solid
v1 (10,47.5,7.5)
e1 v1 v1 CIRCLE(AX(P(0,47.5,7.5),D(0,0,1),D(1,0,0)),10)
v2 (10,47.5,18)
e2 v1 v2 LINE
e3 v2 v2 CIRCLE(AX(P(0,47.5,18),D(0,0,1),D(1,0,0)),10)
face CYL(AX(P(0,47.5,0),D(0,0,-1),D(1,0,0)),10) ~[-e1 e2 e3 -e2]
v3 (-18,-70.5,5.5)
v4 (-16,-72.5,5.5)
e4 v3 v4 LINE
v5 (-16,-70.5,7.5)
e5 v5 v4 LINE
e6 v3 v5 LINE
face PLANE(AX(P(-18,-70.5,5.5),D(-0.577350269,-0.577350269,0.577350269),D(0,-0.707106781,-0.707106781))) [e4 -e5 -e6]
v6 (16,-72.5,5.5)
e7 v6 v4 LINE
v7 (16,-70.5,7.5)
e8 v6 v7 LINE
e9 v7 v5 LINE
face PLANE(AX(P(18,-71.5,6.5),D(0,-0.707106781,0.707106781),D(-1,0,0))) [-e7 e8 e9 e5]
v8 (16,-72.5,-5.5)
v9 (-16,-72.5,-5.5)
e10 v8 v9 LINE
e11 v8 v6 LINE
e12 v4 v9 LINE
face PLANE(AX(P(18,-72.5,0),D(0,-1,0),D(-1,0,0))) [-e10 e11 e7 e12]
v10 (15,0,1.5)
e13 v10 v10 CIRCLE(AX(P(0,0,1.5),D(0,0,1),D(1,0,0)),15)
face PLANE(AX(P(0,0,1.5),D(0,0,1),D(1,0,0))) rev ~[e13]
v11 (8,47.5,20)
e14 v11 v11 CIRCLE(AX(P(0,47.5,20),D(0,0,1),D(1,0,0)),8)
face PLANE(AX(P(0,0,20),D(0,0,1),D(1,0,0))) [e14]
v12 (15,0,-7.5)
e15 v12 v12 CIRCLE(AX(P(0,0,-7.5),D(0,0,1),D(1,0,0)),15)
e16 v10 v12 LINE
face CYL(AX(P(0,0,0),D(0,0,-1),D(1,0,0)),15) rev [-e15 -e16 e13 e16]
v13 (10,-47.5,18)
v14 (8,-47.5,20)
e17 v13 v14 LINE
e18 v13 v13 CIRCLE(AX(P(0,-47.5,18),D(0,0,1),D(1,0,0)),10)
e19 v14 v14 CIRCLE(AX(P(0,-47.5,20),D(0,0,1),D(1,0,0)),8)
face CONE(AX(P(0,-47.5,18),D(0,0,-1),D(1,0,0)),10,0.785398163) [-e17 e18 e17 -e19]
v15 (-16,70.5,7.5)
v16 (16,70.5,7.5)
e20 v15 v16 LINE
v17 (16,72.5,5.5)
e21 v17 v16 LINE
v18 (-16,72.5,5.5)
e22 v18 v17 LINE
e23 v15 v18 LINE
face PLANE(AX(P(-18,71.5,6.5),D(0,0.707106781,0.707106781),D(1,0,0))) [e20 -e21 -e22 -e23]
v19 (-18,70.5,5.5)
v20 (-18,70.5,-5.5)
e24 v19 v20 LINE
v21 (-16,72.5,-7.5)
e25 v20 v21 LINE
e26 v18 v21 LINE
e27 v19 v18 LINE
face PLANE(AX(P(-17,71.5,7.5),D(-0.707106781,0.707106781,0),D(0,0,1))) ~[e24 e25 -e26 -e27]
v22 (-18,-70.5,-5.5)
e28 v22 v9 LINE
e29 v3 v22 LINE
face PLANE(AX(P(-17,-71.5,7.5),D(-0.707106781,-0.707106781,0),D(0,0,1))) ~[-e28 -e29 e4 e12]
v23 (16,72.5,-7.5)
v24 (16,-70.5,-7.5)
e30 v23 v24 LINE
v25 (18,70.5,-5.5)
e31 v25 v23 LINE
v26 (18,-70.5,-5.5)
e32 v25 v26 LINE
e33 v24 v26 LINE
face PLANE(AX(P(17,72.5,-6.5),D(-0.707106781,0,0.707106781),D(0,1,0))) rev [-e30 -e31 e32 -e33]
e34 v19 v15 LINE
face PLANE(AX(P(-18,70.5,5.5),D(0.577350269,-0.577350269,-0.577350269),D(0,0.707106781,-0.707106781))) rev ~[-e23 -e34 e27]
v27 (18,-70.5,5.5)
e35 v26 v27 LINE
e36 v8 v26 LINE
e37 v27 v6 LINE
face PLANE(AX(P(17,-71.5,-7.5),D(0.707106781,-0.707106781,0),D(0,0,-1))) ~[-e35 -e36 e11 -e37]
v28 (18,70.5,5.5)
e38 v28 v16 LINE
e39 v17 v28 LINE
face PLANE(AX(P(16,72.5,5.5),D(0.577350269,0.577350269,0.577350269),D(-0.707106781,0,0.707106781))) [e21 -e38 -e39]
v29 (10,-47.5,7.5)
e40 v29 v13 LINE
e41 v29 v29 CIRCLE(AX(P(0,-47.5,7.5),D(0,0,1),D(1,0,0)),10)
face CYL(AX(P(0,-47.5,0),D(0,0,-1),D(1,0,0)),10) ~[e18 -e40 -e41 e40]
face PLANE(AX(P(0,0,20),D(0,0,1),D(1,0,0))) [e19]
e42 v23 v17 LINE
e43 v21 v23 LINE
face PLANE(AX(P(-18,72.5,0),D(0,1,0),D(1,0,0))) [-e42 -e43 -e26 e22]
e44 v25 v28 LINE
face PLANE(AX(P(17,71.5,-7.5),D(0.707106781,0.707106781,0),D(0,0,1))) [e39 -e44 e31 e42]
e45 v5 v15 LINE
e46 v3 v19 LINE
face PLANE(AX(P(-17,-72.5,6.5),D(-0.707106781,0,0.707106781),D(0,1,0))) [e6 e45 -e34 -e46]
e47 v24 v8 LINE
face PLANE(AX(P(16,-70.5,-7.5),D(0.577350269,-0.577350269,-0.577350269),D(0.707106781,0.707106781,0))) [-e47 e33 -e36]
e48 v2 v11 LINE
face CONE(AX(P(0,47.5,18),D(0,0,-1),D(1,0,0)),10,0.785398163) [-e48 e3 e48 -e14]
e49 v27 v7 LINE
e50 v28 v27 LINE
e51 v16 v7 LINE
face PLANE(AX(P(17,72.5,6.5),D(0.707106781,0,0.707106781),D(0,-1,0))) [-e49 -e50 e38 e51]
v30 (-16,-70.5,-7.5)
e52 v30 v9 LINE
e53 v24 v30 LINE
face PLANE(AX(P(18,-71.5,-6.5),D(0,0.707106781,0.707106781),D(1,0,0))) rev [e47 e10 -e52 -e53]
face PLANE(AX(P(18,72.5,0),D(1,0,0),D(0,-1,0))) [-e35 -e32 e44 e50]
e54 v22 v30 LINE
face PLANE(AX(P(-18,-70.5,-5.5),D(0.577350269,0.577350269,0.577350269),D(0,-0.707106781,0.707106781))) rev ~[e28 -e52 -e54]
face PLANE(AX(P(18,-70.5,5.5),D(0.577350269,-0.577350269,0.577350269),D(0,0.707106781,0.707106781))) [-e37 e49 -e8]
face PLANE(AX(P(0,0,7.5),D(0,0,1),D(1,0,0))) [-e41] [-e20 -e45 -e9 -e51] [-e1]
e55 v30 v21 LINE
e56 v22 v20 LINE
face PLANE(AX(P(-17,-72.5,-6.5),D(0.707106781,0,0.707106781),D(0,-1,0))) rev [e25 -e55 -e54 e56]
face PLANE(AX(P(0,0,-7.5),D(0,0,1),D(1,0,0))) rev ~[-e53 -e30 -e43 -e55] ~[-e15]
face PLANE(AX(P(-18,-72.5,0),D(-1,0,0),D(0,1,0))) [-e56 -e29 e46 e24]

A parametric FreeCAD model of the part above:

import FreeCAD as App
import Part
import Sketcher

V = App.Vector


def edges_at(feature, points):
    """Names of the edges that pass closest to the given points."""
    edges = feature.Shape.Edges
    near = lambda p: min(range(len(edges)), key=lambda i: edges[i].distToShape(Part.Vertex(*p))[0])
    return sorted({f"Edge{near(p) + 1}" for p in points})

doc = App.newDocument("Part")
body = doc.addObject("PartDesign::Body", "Body")

# Sketch on XY plane
sketch1 = body.newObject("Sketcher::SketchObject", "Sketch")
sketch1.AttachmentSupport = (doc.getObject("XY_Plane"), [""])
sketch1.MapMode = "FlatFace"
sketch1.addGeometry(Part.LineSegment(V(-18, -72.5, 0), V(18, -72.5, 0)), False)
sketch1.addGeometry(Part.LineSegment(V(18, -72.5, 0), V(18, 72.5, 0)), False)
sketch1.addGeometry(Part.LineSegment(V(18, 72.5, 0), V(-18, 72.5, 0)), False)
sketch1.addGeometry(Part.LineSegment(V(-18, 72.5, 0), V(-18, -72.5, 0)), False)
sketch1.addGeometry(Part.Circle(V(0, -47.5, 0), V(0, 0, 1), 10), False)
sketch1.addGeometry(Part.Circle(V(0, 0, 0), V(0, 0, 1), 15), False)
sketch1.addGeometry(Part.Circle(V(0, 47.5, 0), V(0, 0, 1), 10), False)
sketch1.addConstraint(Sketcher.Constraint("Coincident", 0, 2, 1, 1))
sketch1.addConstraint(Sketcher.Constraint("Coincident", 1, 2, 2, 1))
sketch1.addConstraint(Sketcher.Constraint("Coincident", 2, 2, 3, 1))
sketch1.addConstraint(Sketcher.Constraint("Coincident", 3, 2, 0, 1))
sketch1.addConstraint(Sketcher.Constraint("Horizontal", 0))
sketch1.addConstraint(Sketcher.Constraint("Vertical", 1))
sketch1.addConstraint(Sketcher.Constraint("Horizontal", 2))
sketch1.addConstraint(Sketcher.Constraint("Vertical", 3))
sketch1.addConstraint(Sketcher.Constraint("Coincident", 5, 3, -1, 1))
sketch1.addConstraint(Sketcher.Constraint("Equal", 4, 6))
sketch1.addConstraint(Sketcher.Constraint("Symmetric", 4, 3, 6, 3, -1, 1))
sketch1.addConstraint(Sketcher.Constraint("Symmetric", 0, 2, 2, 2, -1, 1))
sketch1.addConstraint(Sketcher.Constraint("PointOnObject", 4, 3, -2))
sketch1.addConstraint(Sketcher.Constraint("Diameter", 4, 20.0))
sketch1.addConstraint(Sketcher.Constraint("Diameter", 5, 30.0))
sketch1.addConstraint(Sketcher.Constraint("DistanceX", 0, 1, 0, 2, 36.0))
sketch1.addConstraint(Sketcher.Constraint("DistanceY", 1, 1, 1, 2, 145.0))
sketch1.addConstraint(Sketcher.Constraint("DistanceY", 0, 2, 4, 3, 25.0))
pad1 = body.newObject("PartDesign::Pad", "Pad")
pad1.Profile = sketch1
pad1.Length = 15
pad1.Midplane = True

# Sketch on XY plane
sketch2 = body.newObject("Sketcher::SketchObject", "Sketch001")
sketch2.AttachmentSupport = (doc.getObject("XY_Plane"), [""])
sketch2.MapMode = "FlatFace"
sketch2.addGeometry(Part.Circle(V(0, 47.5, 0), V(0, 0, 1), 10), False)
sketch2.addGeometry(Part.Circle(V(0, -47.5, 0), V(0, 0, 1), 10), False)
sketch2.addConstraint(Sketcher.Constraint("Equal", 0, 1))
sketch2.addConstraint(Sketcher.Constraint("Symmetric", 0, 3, 1, 3, -1, 1))
sketch2.addConstraint(Sketcher.Constraint("PointOnObject", 0, 3, -2))
sketch2.addConstraint(Sketcher.Constraint("Diameter", 0, 20.0))
sketch2.addConstraint(Sketcher.Constraint("DistanceY", 1, 3, 0, 3, 95.0))
pad2 = body.newObject("PartDesign::Pad", "Pad001")
pad2.Profile = sketch2
pad2.Length = 7.5
pad2.Reversed = True

# Sketch on XY plane
sketch3 = body.newObject("Sketcher::SketchObject", "Sketch002")
sketch3.AttachmentSupport = (doc.getObject("XY_Plane"), [""])
sketch3.MapMode = "FlatFace"
sketch3.addGeometry(Part.Circle(V(0, 47.5, 0), V(0, 0, 1), 10), False)
sketch3.addGeometry(Part.Circle(V(0, -47.5, 0), V(0, 0, 1), 10), False)
sketch3.addConstraint(Sketcher.Constraint("Equal", 0, 1))
sketch3.addConstraint(Sketcher.Constraint("Symmetric", 0, 3, 1, 3, -1, 1))
sketch3.addConstraint(Sketcher.Constraint("PointOnObject", 0, 3, -2))
sketch3.addConstraint(Sketcher.Constraint("Diameter", 0, 20.0))
sketch3.addConstraint(Sketcher.Constraint("DistanceY", 1, 3, 0, 3, 95.0))
pad3 = body.newObject("PartDesign::Pad", "Pad002")
pad3.Profile = sketch3
pad3.Length = 20

# Sketch on XY plane
sketch4 = body.newObject("Sketcher::SketchObject", "Sketch003")
sketch4.AttachmentSupport = (doc.getObject("XY_Plane"), [""])
sketch4.MapMode = "FlatFace"
sketch4.AttachmentOffset = App.Placement(V(0, 0, 7.5), App.Rotation())
sketch4.addGeometry(Part.Circle(V(0, 0, 0), V(0, 0, 1), 15), False)
sketch4.addConstraint(Sketcher.Constraint("Coincident", 0, 3, -1, 1))
sketch4.addConstraint(Sketcher.Constraint("Diameter", 0, 30.0))
pad4 = body.newObject("PartDesign::Pad", "Pad003")
pad4.Profile = sketch4
pad4.Length = 6
pad4.Reversed = True
doc.recompute()

chamfer = body.newObject("PartDesign::Chamfer", "Chamfer")
chamfer.Base = (pad4, edges_at(pad4, [
    (0, -72.5, 7.5),
    (18, -72.5, 0),
    (0, -72.5, -7.5),
    (18, 0, -7.5),
    (18, 0, 7.5),
    (18, 72.5, 0),
    (0, 72.5, 7.5),
    (-18, 0, 7.5),
    (-10, 47.5, 20),
    (-10, -47.5, 20),
    (-18, 0, -7.5),
    (-18, -72.5, 0),
    (-18, 72.5, 0),
]))
chamfer.Size = 2

doc.recompute()
